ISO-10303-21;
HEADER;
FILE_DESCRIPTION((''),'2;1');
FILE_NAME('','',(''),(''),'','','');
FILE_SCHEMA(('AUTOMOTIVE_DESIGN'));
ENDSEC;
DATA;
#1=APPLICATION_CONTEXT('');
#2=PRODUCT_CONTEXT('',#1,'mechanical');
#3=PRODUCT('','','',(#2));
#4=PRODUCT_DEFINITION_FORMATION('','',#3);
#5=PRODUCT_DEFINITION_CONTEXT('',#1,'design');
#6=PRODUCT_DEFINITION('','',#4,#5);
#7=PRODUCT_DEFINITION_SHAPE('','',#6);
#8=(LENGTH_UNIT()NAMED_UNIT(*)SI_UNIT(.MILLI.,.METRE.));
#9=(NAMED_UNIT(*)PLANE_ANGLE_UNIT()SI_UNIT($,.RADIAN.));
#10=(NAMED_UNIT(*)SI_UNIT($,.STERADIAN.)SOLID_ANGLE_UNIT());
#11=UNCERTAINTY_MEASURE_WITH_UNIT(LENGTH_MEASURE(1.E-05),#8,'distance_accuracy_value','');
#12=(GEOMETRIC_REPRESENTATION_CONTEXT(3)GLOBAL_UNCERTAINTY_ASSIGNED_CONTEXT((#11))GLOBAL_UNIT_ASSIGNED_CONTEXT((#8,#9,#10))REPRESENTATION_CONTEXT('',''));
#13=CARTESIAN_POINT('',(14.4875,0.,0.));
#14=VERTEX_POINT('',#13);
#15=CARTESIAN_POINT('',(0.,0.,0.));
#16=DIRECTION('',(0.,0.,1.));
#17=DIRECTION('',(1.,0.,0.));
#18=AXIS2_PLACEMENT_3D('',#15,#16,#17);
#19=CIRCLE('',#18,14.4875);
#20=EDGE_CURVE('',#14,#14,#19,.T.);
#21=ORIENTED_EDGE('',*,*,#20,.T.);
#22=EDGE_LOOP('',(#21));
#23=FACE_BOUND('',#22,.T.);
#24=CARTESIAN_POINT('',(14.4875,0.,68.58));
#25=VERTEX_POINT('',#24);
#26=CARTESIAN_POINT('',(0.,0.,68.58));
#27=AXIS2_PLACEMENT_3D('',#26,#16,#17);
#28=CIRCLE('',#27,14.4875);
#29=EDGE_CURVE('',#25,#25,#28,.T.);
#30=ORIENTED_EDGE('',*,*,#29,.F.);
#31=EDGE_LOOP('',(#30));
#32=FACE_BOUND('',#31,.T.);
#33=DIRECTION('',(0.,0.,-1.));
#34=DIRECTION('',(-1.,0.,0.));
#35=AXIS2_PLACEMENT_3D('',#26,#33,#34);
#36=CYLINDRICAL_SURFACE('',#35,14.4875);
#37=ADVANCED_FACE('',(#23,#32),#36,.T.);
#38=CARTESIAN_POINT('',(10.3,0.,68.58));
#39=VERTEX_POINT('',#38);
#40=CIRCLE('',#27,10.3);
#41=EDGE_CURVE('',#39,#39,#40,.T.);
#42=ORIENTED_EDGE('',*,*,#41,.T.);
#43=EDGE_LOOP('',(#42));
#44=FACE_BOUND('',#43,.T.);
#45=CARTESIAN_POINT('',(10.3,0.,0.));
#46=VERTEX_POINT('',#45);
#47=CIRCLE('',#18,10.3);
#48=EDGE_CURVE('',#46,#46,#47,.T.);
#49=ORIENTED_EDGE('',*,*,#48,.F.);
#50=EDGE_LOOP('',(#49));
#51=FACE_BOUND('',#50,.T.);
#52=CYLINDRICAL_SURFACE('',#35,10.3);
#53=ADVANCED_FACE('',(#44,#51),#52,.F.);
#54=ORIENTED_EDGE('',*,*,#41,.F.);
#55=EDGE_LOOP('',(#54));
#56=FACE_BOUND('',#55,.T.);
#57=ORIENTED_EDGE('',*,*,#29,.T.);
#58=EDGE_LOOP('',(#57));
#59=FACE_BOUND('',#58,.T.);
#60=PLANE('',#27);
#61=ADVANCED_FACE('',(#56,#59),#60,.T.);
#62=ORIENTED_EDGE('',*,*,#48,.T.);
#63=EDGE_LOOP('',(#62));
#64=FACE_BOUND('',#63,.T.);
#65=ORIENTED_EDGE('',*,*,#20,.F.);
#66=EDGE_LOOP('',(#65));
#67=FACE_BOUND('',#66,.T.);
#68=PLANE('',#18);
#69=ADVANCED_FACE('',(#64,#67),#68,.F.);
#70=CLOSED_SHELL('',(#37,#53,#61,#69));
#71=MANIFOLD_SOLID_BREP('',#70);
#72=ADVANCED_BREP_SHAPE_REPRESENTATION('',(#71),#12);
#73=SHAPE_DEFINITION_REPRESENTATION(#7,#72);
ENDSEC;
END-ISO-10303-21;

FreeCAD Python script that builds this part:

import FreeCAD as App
import Part
import Sketcher

doc = App.newDocument("Part")
body = doc.addObject("PartDesign::Body", "Body")

sketch1 = doc.addObject("Sketcher::SketchObject", "Sketch")
body.addObject(sketch1)
sketch1.AttachmentSupport = (doc.XY_Plane, [""])
sketch1.MapMode = "FlatFace"
sketch1.addGeometry([
    Part.Circle(App.Vector(0, 0, 0), App.Vector(0, 0, 1), 14),
    Part.Circle(App.Vector(0, 0, 0), App.Vector(0, 0, 1), 10),
], False)
sketch1.addConstraint([
    Sketcher.Constraint("Coincident", 0, 3, -1, 1),
    Sketcher.Constraint("Coincident", 1, 3, -1, 1),
    Sketcher.Constraint("Diameter", 1, 20.6),
    Sketcher.Constraint("Diameter", 0, 28.975),
])
pad1 = doc.addObject("PartDesign::Pad", "Pad")
body.addObject(pad1)
pad1.Profile = sketch1
pad1.Length = 68.58

doc.recompute()
